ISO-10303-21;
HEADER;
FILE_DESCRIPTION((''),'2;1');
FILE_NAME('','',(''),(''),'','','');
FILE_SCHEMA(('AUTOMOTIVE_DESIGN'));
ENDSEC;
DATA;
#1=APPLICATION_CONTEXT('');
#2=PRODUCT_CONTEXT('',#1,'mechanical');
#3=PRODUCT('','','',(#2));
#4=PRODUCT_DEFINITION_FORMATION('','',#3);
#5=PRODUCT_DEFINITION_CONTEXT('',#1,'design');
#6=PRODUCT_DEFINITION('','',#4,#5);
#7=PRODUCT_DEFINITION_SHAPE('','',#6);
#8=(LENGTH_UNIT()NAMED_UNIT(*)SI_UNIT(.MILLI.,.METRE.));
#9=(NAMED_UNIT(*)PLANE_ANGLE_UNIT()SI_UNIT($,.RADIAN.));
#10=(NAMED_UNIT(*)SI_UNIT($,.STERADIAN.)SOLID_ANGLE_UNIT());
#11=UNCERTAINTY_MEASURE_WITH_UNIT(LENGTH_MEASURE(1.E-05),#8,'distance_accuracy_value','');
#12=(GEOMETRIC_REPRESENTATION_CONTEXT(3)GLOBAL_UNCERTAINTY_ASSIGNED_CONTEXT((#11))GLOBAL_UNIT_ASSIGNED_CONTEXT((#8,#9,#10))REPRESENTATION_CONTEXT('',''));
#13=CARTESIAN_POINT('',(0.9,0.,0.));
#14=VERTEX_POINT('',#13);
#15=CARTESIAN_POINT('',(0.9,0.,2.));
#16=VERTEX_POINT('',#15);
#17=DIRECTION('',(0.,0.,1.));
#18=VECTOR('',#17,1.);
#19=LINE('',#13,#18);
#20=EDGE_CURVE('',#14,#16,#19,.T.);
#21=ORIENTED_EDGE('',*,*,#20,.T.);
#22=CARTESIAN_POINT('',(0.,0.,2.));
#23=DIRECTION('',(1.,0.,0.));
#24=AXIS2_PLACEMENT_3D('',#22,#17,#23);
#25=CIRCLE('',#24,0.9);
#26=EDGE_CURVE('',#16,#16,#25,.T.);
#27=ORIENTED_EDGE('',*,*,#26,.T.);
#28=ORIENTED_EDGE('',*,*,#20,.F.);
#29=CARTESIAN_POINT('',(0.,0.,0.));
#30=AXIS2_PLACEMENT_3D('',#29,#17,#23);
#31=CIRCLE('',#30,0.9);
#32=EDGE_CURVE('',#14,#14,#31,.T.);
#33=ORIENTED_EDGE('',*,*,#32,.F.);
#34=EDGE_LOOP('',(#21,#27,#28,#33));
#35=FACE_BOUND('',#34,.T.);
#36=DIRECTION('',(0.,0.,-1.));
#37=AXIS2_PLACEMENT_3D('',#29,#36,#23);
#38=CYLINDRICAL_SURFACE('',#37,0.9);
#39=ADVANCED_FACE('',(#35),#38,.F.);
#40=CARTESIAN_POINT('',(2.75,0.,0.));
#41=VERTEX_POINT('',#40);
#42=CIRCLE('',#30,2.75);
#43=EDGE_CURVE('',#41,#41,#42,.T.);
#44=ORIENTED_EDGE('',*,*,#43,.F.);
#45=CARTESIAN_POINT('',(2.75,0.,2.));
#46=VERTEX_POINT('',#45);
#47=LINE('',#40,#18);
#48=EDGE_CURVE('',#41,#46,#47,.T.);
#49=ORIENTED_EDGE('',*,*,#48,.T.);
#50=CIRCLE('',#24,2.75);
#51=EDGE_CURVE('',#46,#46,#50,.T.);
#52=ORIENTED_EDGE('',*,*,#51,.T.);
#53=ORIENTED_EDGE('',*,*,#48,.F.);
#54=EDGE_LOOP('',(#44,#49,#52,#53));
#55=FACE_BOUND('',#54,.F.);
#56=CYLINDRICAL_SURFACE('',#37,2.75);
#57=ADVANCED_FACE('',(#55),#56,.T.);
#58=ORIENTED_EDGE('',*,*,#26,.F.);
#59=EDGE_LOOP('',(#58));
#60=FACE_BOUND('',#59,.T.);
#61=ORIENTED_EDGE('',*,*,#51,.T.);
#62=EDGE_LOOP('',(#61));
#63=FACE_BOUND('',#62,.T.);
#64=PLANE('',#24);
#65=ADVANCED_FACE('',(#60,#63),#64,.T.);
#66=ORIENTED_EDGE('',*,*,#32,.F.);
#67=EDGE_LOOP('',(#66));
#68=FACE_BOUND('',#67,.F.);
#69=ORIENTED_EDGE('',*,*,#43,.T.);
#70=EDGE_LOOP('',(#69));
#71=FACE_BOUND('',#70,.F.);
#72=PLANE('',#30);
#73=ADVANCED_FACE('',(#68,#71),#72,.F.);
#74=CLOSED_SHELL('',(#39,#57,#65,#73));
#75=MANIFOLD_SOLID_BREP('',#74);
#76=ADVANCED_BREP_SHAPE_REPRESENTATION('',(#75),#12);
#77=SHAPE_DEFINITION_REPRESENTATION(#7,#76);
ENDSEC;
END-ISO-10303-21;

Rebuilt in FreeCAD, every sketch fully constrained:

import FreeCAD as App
import Part
import Sketcher

doc = App.newDocument("Part")
body = doc.addObject("PartDesign::Body", "Body")

# Sketch on XY plane
sketch1 = doc.addObject("Sketcher::SketchObject", "Sketch")
body.addObject(sketch1)
sketch1.AttachmentSupport = (doc.XY_Plane, [""])
sketch1.MapMode = "FlatFace"
sketch1.addGeometry(Part.Circle(App.Vector(0, 0, 0), App.Vector(0, 0, 1), 0.9), False)
sketch1.addConstraint([
    Sketcher.Constraint("Coincident", 0, 3, -1, 1),
    Sketcher.Constraint("Diameter", 0, 1.8),
])
pad1 = doc.addObject("PartDesign::Pad", "Pad")
body.addObject(pad1)
pad1.Profile = sketch1
pad1.Length = 2
body2 = doc.addObject("PartDesign::Body", "Body001")

# Sketch on XY plane
sketch2 = doc.addObject("Sketcher::SketchObject", "Sketch001")
body2.addObject(sketch2)
sketch2.AttachmentSupport = (doc.getObject("XY_Plane001"), [""])
sketch2.MapMode = "FlatFace"
sketch2.addGeometry(Part.Circle(App.Vector(0, 0, 0), App.Vector(0, 0, 1), 2.75), False)
sketch2.addConstraint([
    Sketcher.Constraint("Coincident", 0, 3, -1, 1),
    Sketcher.Constraint("Diameter", 0, 5.5),
])
pad2 = doc.addObject("PartDesign::Pad", "Pad001")
body2.addObject(pad2)
pad2.Profile = sketch2
pad2.Length = 2
doc.recompute()

boolean = doc.addObject("PartDesign::Boolean", "Boolean")
body2.addObject(boolean)
boolean.Type = "Cut"
boolean.addObjects([body])

doc.recompute()
